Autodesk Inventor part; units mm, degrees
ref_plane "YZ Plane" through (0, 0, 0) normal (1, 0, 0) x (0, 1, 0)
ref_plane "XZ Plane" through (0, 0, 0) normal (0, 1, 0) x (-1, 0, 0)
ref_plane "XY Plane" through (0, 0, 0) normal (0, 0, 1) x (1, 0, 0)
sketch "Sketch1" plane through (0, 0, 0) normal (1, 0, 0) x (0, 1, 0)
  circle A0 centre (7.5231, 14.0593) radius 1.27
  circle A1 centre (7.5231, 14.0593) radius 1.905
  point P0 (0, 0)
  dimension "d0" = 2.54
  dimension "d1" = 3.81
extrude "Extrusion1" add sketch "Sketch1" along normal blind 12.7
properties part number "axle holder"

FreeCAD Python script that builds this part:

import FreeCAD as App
import Part
import Sketcher
from FreeCAD import Vector
Q = App.Units.Quantity

doc = App.newDocument("Part")
params = doc.addObject("Spreadsheet::Sheet", "Params")
for row, (alias, value) in enumerate([
    ("sketch1_diameter", "0.1 in"),
    ("sketch1_diameter2", "0.15 in"),
    ("pad1_length", "0.5 in"),
], start=1):
    params.set(f"A{row}", alias)
    params.set(f"B{row}", "=" + value)
    params.setAlias(f"B{row}", alias)

body = doc.addObject("PartDesign::Body", "Body")

# Sketch on YZ plane
sketch1 = body.newObject("Sketcher::SketchObject", "Sketch")
sketch1.AttachmentSupport = (doc.getObject("YZ_Plane"), [""])
sketch1.MapMode = "FlatFace"
sketch1.addGeometry(Part.Circle(Vector(7.5, 14.1, 0), Vector(0, 0, 1), 1.9), False)
sketch1.addGeometry(Part.Circle(Vector(7.5, 14.1, 0), Vector(0, 0, 1), 1.3), False)
sketch1.addConstraint(Sketcher.Constraint("Coincident", 1, 3, 0, 3))
sketch1.addConstraint(Sketcher.Constraint("Diameter", 1, Q("0.1 in")))
sketch1.addConstraint(Sketcher.Constraint("Diameter", 0, Q("0.15 in")))
sketch1.addConstraint(Sketcher.Constraint("DistanceX", -1, 1, 0, 3, 7.523))
sketch1.addConstraint(Sketcher.Constraint("DistanceY", -1, 1, 0, 3, 14.0593))
sketch1.setExpression("Constraints[1]", "Params.sketch1_diameter")
sketch1.setExpression("Constraints[2]", "Params.sketch1_diameter2")
pad1 = body.newObject("PartDesign::Pad", "Pad")
pad1.Profile = sketch1
pad1.setExpression("Length", "Params.pad1_length")

doc.recompute()
